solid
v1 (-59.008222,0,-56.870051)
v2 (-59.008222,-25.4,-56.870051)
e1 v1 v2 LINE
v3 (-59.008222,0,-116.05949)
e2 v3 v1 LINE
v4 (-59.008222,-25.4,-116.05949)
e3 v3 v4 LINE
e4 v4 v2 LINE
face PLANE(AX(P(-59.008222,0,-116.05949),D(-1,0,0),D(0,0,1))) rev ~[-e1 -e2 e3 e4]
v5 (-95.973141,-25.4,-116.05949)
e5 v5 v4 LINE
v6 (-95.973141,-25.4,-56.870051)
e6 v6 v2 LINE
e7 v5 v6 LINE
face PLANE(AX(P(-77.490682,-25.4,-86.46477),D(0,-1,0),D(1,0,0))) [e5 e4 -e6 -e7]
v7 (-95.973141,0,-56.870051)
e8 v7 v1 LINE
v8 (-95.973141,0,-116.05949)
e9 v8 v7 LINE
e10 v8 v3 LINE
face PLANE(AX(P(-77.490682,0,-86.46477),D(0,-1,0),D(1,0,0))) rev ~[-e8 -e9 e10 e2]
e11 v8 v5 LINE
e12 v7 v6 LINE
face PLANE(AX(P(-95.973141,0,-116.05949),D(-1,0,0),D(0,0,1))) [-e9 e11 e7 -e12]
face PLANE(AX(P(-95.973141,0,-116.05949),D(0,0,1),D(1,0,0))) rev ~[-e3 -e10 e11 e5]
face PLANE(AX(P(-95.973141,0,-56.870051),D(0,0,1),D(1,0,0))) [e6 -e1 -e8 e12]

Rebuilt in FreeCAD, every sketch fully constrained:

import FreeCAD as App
import Part
import Sketcher
Q = App.Units.Quantity


def add_polygon(sketch, points):
    """Adds a closed chain of lines whose ends are joined by coincident constraints."""
    first, n = sketch.GeometryCount, len(points)
    for a, b in zip(points, points[1:] + points[:1]):
        sketch.addGeometry(Part.LineSegment(App.Vector(*a, 0), App.Vector(*b, 0)), False)
    for i in range(n):
        sketch.addConstraint(Sketcher.Constraint("Coincident", first + i, 2, first + (i + 1) % n, 1))

doc = App.newDocument("Part")
body = doc.addObject("PartDesign::Body", "Body")

# Sketch on XZ plane
sketch1 = doc.addObject("Sketcher::SketchObject", "Sketch")
body.addObject(sketch1)
sketch1.AttachmentSupport = (doc.XZ_Plane, [""])
sketch1.MapMode = "FlatFace"
add_polygon(sketch1, [(-167, 50), (-167, 33), (-88, 33), (-88, 50)])  # lines 0-3
sketch1.addConstraint(Sketcher.Constraint("Vertical", 0))
sketch1.addConstraint(Sketcher.Constraint("Horizontal", 1))
sketch1.addConstraint(Sketcher.Constraint("Vertical", 2))
sketch1.addConstraint(Sketcher.Constraint("Horizontal", 3))
sketch1.addConstraint(Sketcher.Constraint("DistanceX", 1, 1, 1, 2, 79.01676))
sketch1.addConstraint(Sketcher.Constraint("DistanceY", 0, 2, 0, 1, 16.867772))
sketch1.addConstraint(Sketcher.Constraint("DistanceY", -1, 1, 2, 2, 49.503099))
sketch1.addConstraint(Sketcher.Constraint("DistanceX", 0, 2, -1, 1, 166.850835))
pad1 = doc.addObject("PartDesign::Pad", "Pad")
body.addObject(pad1)
pad1.Profile = sketch1
pad1.Length = Q("1 in")
body2 = doc.addObject("PartDesign::Body", "Body001")

# Sketch on XZ plane
sketch2 = doc.addObject("Sketcher::SketchObject", "Sketch001")
body2.addObject(sketch2)
sketch2.AttachmentSupport = (doc.getObject("XZ_Plane001"), [""])
sketch2.MapMode = "FlatFace"
add_polygon(sketch2, [(-47, 69), (-47, 28), (-27, 28), (-27, 69)])  # lines 0-3
sketch2.addConstraint(Sketcher.Constraint("Vertical", 0))
sketch2.addConstraint(Sketcher.Constraint("Horizontal", 1))
sketch2.addConstraint(Sketcher.Constraint("Vertical", 2))
sketch2.addConstraint(Sketcher.Constraint("Horizontal", 3))
sketch2.addConstraint(Sketcher.Constraint("DistanceX", 1, 1, 1, 2, 19.66941))
sketch2.addConstraint(Sketcher.Constraint("DistanceY", 0, 2, 0, 1, 41.121552))
sketch2.addConstraint(Sketcher.Constraint("DistanceY", -1, 1, 2, 2, 68.800248))
sketch2.addConstraint(Sketcher.Constraint("DistanceX", 0, 2, -1, 1, 47.138754))
pad2 = doc.addObject("PartDesign::Pad", "Pad001")
body2.addObject(pad2)
pad2.Profile = sketch2
pad2.Length = Q("1 in")
body3 = doc.addObject("PartDesign::Body", "Body002")

# Sketch on XZ plane
sketch3 = doc.addObject("Sketcher::SketchObject", "Sketch002")
body3.addObject(sketch3)
sketch3.AttachmentSupport = (doc.getObject("XZ_Plane002"), [""])
sketch3.MapMode = "FlatFace"
add_polygon(sketch3, [(6, 58), (6, -52), (41, -52), (41, 58)])  # lines 0-3
sketch3.addConstraint(Sketcher.Constraint("Vertical", 0))
sketch3.addConstraint(Sketcher.Constraint("Horizontal", 1))
sketch3.addConstraint(Sketcher.Constraint("Vertical", 2))
sketch3.addConstraint(Sketcher.Constraint("Horizontal", 3))
sketch3.addConstraint(Sketcher.Constraint("DistanceY", 0, 2, 0, 1, 109.28949))
sketch3.addConstraint(Sketcher.Constraint("DistanceX", -1, 1, 0, 2, 6.1043))
sketch3.addConstraint(Sketcher.Constraint("DistanceX", 1, 1, 1, 2, 34.930153))
sketch3.addConstraint(Sketcher.Constraint("DistanceY", 0, 2, -1, 1, 51.571257))
pad3 = doc.addObject("PartDesign::Pad", "Pad002")
body3.addObject(pad3)
pad3.Profile = sketch3
pad3.Length = Q("1 in")
body4 = doc.addObject("PartDesign::Body", "Body003")

# Sketch on XZ plane
sketch4 = doc.addObject("Sketcher::SketchObject", "Sketch003")
body4.addObject(sketch4)
sketch4.AttachmentSupport = (doc.getObject("XZ_Plane003"), [""])
sketch4.MapMode = "FlatFace"
add_polygon(sketch4, [(-96, -57), (-96, -116), (-59, -116), (-59, -57)])  # lines 0-3
sketch4.addConstraint(Sketcher.Constraint("Vertical", 0))
sketch4.addConstraint(Sketcher.Constraint("Horizontal", 1))
sketch4.addConstraint(Sketcher.Constraint("Vertical", 2))
sketch4.addConstraint(Sketcher.Constraint("Horizontal", 3))
sketch4.addConstraint(Sketcher.Constraint("DistanceX", 1, 1, 1, 2, 36.964919))
sketch4.addConstraint(Sketcher.Constraint("DistanceY", 0, 2, 0, 1, 59.189439))
sketch4.addConstraint(Sketcher.Constraint("DistanceX", 0, 2, -1, 1, 95.973141))
sketch4.addConstraint(Sketcher.Constraint("DistanceY", 0, 2, -1, 1, 116.05949))
pad4 = doc.addObject("PartDesign::Pad", "Pad003")
body4.addObject(pad4)
pad4.Profile = sketch4
pad4.Length = Q("1 in")
body.Visibility = False
body2.Visibility = False
body3.Visibility = False

doc.recompute()
